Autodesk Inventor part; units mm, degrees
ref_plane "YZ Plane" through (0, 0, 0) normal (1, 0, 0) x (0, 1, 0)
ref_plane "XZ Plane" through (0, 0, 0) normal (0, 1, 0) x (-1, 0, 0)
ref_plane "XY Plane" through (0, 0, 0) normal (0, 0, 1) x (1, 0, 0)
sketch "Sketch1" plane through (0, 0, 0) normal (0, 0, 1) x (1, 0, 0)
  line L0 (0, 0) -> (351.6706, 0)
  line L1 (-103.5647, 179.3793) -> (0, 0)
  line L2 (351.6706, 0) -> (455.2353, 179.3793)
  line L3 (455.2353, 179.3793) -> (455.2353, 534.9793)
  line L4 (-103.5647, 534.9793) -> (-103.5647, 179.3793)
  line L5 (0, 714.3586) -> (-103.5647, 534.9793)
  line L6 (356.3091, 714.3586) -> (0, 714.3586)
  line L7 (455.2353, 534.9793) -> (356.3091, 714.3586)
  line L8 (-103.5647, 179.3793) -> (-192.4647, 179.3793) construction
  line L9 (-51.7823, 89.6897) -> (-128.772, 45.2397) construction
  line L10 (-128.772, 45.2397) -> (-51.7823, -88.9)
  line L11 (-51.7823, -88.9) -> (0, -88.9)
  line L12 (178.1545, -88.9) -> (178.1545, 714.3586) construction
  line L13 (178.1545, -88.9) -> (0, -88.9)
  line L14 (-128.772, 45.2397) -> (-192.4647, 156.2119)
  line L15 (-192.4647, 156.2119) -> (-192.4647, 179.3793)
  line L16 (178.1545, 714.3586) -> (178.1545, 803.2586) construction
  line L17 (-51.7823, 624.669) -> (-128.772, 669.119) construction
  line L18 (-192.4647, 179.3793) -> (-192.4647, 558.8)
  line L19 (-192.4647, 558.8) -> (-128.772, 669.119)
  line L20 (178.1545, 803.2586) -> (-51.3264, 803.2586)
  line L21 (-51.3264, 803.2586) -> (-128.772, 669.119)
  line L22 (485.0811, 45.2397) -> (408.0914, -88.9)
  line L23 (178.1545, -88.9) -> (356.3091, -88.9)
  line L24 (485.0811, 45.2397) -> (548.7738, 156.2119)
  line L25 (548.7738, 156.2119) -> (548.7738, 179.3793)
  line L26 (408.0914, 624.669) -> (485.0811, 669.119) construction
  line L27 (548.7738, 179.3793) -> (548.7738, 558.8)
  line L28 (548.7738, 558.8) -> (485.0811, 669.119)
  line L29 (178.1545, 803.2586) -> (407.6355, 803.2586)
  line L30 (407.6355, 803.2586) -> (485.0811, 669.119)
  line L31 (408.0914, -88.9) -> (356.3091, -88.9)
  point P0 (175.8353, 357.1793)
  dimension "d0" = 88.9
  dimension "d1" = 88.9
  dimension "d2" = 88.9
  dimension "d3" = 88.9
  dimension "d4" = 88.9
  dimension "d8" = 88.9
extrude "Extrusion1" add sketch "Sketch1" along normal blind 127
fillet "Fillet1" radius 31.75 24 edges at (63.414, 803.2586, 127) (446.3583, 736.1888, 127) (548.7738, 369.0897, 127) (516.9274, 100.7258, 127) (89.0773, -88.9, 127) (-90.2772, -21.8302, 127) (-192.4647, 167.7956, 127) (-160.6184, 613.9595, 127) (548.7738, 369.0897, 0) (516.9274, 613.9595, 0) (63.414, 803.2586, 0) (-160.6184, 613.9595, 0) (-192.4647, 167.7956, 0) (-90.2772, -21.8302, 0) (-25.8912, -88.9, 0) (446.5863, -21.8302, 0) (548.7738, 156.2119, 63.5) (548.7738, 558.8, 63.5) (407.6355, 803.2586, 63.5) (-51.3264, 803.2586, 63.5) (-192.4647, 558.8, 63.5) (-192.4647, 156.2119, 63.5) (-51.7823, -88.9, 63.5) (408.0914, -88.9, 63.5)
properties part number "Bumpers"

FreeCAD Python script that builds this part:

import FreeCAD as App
import Part
import Sketcher
Q = App.Units.Quantity


def edges_at(feature, points):
    """Names of the edges that pass closest to the given points."""
    edges = feature.Shape.Edges
    near = lambda p: min(range(len(edges)), key=lambda i: edges[i].distToShape(Part.Vertex(*p))[0])
    return sorted({f"Edge{near(p) + 1}" for p in points})

doc = App.newDocument("Part")
params = doc.addObject("Spreadsheet::Sheet", "Params")
for row, (alias, value) in enumerate([
    ("sketch1_height", "14 in"),
    ("pad1_length", "5 in"),
    ("fillet_radius", "1.25 in"),
], start=1):
    params.set(f"A{row}", alias)
    params.set(f"B{row}", "=" + value)
    params.setAlias(f"B{row}", alias)

body = doc.addObject("PartDesign::Body", "Body")

sketch1 = body.newObject("Sketcher::SketchObject", "Sketch")
sketch1.AttachmentSupport = (doc.getObject("XY_Plane"), [""])
sketch1.MapMode = "FlatFace"
sketch1.addGeometry(Part.LineSegment(App.Vector(-192.4647, 156.2119, 0), App.Vector(-128.772, 45.2397, 0)), False)
sketch1.addGeometry(Part.LineSegment(App.Vector(-128.772, 45.2397, 0), App.Vector(-51.7823, -88.9, 0)), False)
sketch1.addGeometry(Part.LineSegment(App.Vector(-51.7823, -88.9, 0), App.Vector(408.0914, -88.9, 0)), False)
sketch1.addGeometry(Part.LineSegment(App.Vector(408.0914, -88.9, 0), App.Vector(485.0811, 45.2397, 0)), False)
sketch1.addGeometry(Part.LineSegment(App.Vector(485.0811, 45.2397, 0), App.Vector(548.7738, 156.2119, 0)), False)
sketch1.addGeometry(Part.LineSegment(App.Vector(548.7738, 156.2119, 0), App.Vector(548.7738, 558.8, 0)), False)
sketch1.addGeometry(Part.LineSegment(App.Vector(548.7738, 558.8, 0), App.Vector(485.0811, 669.119, 0)), False)
sketch1.addGeometry(Part.LineSegment(App.Vector(485.0811, 669.119, 0), App.Vector(407.6355, 803.2586, 0)), False)
sketch1.addGeometry(Part.LineSegment(App.Vector(407.6355, 803.2586, 0), App.Vector(-51.3264, 803.2586, 0)), False)
sketch1.addGeometry(Part.LineSegment(App.Vector(-51.3264, 803.2586, 0), App.Vector(-128.772, 669.119, 0)), False)
sketch1.addGeometry(Part.LineSegment(App.Vector(-128.772, 669.119, 0), App.Vector(-192.4647, 558.8, 0)), False)
sketch1.addGeometry(Part.LineSegment(App.Vector(-192.4647, 558.8, 0), App.Vector(-192.4647, 156.2119, 0)), False)
sketch1.addGeometry(Part.LineSegment(App.Vector(351.6706, 0, 0), App.Vector(0, 0, 0)), False)
sketch1.addGeometry(Part.LineSegment(App.Vector(0, 0, 0), App.Vector(-103.5647, 179.3793, 0)), False)
sketch1.addGeometry(Part.LineSegment(App.Vector(-103.5647, 179.3793, 0), App.Vector(-103.5647, 534.9793, 0)), False)
sketch1.addGeometry(Part.LineSegment(App.Vector(-103.5647, 534.9793, 0), App.Vector(0, 714.3586, 0)), False)
sketch1.addGeometry(Part.LineSegment(App.Vector(0, 714.3586, 0), App.Vector(356.3091, 714.3586, 0)), False)
sketch1.addGeometry(Part.LineSegment(App.Vector(356.3091, 714.3586, 0), App.Vector(455.2353, 534.9793, 0)), False)
sketch1.addGeometry(Part.LineSegment(App.Vector(455.2353, 534.9793, 0), App.Vector(455.2353, 179.3793, 0)), False)
sketch1.addGeometry(Part.LineSegment(App.Vector(455.2353, 179.3793, 0), App.Vector(351.6706, 0, 0)), False)
sketch1.addConstraint(Sketcher.Constraint("Coincident", 0, 2, 1, 1))
sketch1.addConstraint(Sketcher.Constraint("Coincident", 1, 2, 2, 1))
sketch1.addConstraint(Sketcher.Constraint("Coincident", 2, 2, 3, 1))
sketch1.addConstraint(Sketcher.Constraint("Coincident", 3, 2, 4, 1))
sketch1.addConstraint(Sketcher.Constraint("Coincident", 4, 2, 5, 1))
sketch1.addConstraint(Sketcher.Constraint("Coincident", 5, 2, 6, 1))
sketch1.addConstraint(Sketcher.Constraint("Coincident", 6, 2, 7, 1))
sketch1.addConstraint(Sketcher.Constraint("Coincident", 7, 2, 8, 1))
sketch1.addConstraint(Sketcher.Constraint("Coincident", 8, 2, 9, 1))
sketch1.addConstraint(Sketcher.Constraint("Coincident", 9, 2, 10, 1))
sketch1.addConstraint(Sketcher.Constraint("Coincident", 10, 2, 11, 1))
sketch1.addConstraint(Sketcher.Constraint("Coincident", 11, 2, 0, 1))
sketch1.addConstraint(Sketcher.Constraint("Coincident", 12, 2, 13, 1))
sketch1.addConstraint(Sketcher.Constraint("Coincident", 13, 2, 14, 1))
sketch1.addConstraint(Sketcher.Constraint("Coincident", 14, 2, 15, 1))
sketch1.addConstraint(Sketcher.Constraint("Coincident", 15, 2, 16, 1))
sketch1.addConstraint(Sketcher.Constraint("Coincident", 16, 2, 17, 1))
sketch1.addConstraint(Sketcher.Constraint("Coincident", 17, 2, 18, 1))
sketch1.addConstraint(Sketcher.Constraint("Coincident", 18, 2, 19, 1))
sketch1.addConstraint(Sketcher.Constraint("Coincident", 19, 2, 12, 1))
sketch1.addConstraint(Sketcher.Constraint("Horizontal", 2))
sketch1.addConstraint(Sketcher.Constraint("Vertical", 5))
sketch1.addConstraint(Sketcher.Constraint("Horizontal", 8))
sketch1.addConstraint(Sketcher.Constraint("Vertical", 11))
sketch1.addConstraint(Sketcher.Constraint("Horizontal", 12))
sketch1.addConstraint(Sketcher.Constraint("Vertical", 14))
sketch1.addConstraint(Sketcher.Constraint("Horizontal", 16))
sketch1.addConstraint(Sketcher.Constraint("Vertical", 18))
sketch1.addConstraint(Sketcher.Constraint("Coincident", 12, 2, -1, 1))
sketch1.addConstraint(Sketcher.Constraint("PointOnObject", 15, 2, -2))
sketch1.addConstraint(Sketcher.Constraint("Parallel", 0, 1))
sketch1.addConstraint(Sketcher.Constraint("Parallel", 3, 4))
sketch1.addConstraint(Sketcher.Constraint("Parallel", 6, 7))
sketch1.addConstraint(Sketcher.Constraint("Parallel", 9, 10))
sketch1.addConstraint(Sketcher.Constraint("Parallel", 7, 13))
sketch1.addConstraint(Sketcher.Constraint("Parallel", 10, 15))
sketch1.addConstraint(Sketcher.Constraint("Parallel", 15, 19))
sketch1.addConstraint(Sketcher.Constraint("Horizontal", 0, 2, 3, 2))
sketch1.addConstraint(Sketcher.Constraint("Horizontal", 6, 2, 9, 2))
sketch1.addConstraint(Sketcher.Constraint("Horizontal", 5, 2, 10, 2))
sketch1.addConstraint(Sketcher.Constraint("Horizontal", 4, 2, 11, 2))
sketch1.addConstraint(Sketcher.Constraint("Horizontal", 14, 2, 17, 2))
sketch1.addConstraint(Sketcher.Constraint("Horizontal", 13, 2, 18, 2))
sketch1.addConstraint(Sketcher.Constraint("Vertical", 3, 2, 6, 2))
sketch1.addConstraint(Sketcher.Constraint("Vertical", 0, 2, 9, 2))
sketch1.addConstraint(Sketcher.Constraint("Equal", 1, 3))
sketch1.addConstraint(Sketcher.Constraint("DistanceY", 1, 2, -1, 1, Q("3.5 in")))
sketch1.addConstraint(Sketcher.Constraint("DistanceX", 11, 2, 13, 2, Q("3.5 in")))
sketch1.addConstraint(Sketcher.Constraint("DistanceY", 15, 2, 8, 2, Q("3.5 in")))
sketch1.addConstraint(Sketcher.Constraint("DistanceY", 14, 1, 14, 2, Q("14 in")))
sketch1.addConstraint(Sketcher.Constraint("DistanceY", -1, 1, 5, 2, Q("22 in")))
sketch1.addConstraint(Sketcher.Constraint("Angle", 6, Q("120 deg")))
sketch1.addConstraint(Sketcher.Constraint("DistanceX", 12, 2, 12, 1, Q("13.8453 in")))
sketch1.addConstraint(Sketcher.Constraint("DistanceX", 8, 2, 5, 2, Q("23.626 in")))
sketch1.addConstraint(Sketcher.Constraint("DistanceX", 7, 2, 17, 2, Q("1.874 in")))
sketch1.addConstraint(Sketcher.Constraint("DistanceX", 2, 1, 2, 2, Q("459.8737 mm")))
sketch1.addConstraint(Sketcher.Constraint("DistanceX", 16, 1, 16, 2, Q("356.309 mm")))
sketch1.addConstraint(Sketcher.Constraint("DistanceY", 5, 1, 5, 2, Q("402.588 mm")))
sketch1.addConstraint(Sketcher.Constraint("DistanceY", -1, 1, 0, 2, Q("1.7811 in")))
sketch1.setExpression("Constraints[49]", "Params.sketch1_height")
pad1 = body.newObject("PartDesign::Pad", "Pad")
pad1.Profile = sketch1
pad1.setExpression("Length", "Params.pad1_length")
doc.recompute()

fillet = body.newObject("PartDesign::Fillet", "Fillet")
fillet.Base = (pad1, edges_at(pad1, [
    (63.414, 803.259, 127),
    (446.358, 736.189, 127),
    (548.774, 369.09, 127),
    (516.927, 100.726, 127),
    (89.077, -88.9, 127),
    (-90.277, -21.83, 127),
    (-192.465, 167.796, 127),
    (-160.618, 613.96, 127),
    (548.774, 369.09, 0),
    (516.927, 613.96, 0),
    (63.414, 803.259, 0),
    (-160.618, 613.96, 0),
    (-192.465, 167.796, 0),
    (-90.277, -21.83, 0),
    (-25.891, -88.9, 0),
    (446.586, -21.83, 0),
    (548.774, 156.212, 63.5),
    (548.774, 558.8, 63.5),
    (407.635, 803.259, 63.5),
    (-51.326, 803.259, 63.5),
    (-192.465, 558.8, 63.5),
    (-192.465, 156.212, 63.5),
    (-51.782, -88.9, 63.5),
    (408.091, -88.9, 63.5),
]))
fillet.setExpression("Radius", "Params.fillet_radius")

doc.recompute()
